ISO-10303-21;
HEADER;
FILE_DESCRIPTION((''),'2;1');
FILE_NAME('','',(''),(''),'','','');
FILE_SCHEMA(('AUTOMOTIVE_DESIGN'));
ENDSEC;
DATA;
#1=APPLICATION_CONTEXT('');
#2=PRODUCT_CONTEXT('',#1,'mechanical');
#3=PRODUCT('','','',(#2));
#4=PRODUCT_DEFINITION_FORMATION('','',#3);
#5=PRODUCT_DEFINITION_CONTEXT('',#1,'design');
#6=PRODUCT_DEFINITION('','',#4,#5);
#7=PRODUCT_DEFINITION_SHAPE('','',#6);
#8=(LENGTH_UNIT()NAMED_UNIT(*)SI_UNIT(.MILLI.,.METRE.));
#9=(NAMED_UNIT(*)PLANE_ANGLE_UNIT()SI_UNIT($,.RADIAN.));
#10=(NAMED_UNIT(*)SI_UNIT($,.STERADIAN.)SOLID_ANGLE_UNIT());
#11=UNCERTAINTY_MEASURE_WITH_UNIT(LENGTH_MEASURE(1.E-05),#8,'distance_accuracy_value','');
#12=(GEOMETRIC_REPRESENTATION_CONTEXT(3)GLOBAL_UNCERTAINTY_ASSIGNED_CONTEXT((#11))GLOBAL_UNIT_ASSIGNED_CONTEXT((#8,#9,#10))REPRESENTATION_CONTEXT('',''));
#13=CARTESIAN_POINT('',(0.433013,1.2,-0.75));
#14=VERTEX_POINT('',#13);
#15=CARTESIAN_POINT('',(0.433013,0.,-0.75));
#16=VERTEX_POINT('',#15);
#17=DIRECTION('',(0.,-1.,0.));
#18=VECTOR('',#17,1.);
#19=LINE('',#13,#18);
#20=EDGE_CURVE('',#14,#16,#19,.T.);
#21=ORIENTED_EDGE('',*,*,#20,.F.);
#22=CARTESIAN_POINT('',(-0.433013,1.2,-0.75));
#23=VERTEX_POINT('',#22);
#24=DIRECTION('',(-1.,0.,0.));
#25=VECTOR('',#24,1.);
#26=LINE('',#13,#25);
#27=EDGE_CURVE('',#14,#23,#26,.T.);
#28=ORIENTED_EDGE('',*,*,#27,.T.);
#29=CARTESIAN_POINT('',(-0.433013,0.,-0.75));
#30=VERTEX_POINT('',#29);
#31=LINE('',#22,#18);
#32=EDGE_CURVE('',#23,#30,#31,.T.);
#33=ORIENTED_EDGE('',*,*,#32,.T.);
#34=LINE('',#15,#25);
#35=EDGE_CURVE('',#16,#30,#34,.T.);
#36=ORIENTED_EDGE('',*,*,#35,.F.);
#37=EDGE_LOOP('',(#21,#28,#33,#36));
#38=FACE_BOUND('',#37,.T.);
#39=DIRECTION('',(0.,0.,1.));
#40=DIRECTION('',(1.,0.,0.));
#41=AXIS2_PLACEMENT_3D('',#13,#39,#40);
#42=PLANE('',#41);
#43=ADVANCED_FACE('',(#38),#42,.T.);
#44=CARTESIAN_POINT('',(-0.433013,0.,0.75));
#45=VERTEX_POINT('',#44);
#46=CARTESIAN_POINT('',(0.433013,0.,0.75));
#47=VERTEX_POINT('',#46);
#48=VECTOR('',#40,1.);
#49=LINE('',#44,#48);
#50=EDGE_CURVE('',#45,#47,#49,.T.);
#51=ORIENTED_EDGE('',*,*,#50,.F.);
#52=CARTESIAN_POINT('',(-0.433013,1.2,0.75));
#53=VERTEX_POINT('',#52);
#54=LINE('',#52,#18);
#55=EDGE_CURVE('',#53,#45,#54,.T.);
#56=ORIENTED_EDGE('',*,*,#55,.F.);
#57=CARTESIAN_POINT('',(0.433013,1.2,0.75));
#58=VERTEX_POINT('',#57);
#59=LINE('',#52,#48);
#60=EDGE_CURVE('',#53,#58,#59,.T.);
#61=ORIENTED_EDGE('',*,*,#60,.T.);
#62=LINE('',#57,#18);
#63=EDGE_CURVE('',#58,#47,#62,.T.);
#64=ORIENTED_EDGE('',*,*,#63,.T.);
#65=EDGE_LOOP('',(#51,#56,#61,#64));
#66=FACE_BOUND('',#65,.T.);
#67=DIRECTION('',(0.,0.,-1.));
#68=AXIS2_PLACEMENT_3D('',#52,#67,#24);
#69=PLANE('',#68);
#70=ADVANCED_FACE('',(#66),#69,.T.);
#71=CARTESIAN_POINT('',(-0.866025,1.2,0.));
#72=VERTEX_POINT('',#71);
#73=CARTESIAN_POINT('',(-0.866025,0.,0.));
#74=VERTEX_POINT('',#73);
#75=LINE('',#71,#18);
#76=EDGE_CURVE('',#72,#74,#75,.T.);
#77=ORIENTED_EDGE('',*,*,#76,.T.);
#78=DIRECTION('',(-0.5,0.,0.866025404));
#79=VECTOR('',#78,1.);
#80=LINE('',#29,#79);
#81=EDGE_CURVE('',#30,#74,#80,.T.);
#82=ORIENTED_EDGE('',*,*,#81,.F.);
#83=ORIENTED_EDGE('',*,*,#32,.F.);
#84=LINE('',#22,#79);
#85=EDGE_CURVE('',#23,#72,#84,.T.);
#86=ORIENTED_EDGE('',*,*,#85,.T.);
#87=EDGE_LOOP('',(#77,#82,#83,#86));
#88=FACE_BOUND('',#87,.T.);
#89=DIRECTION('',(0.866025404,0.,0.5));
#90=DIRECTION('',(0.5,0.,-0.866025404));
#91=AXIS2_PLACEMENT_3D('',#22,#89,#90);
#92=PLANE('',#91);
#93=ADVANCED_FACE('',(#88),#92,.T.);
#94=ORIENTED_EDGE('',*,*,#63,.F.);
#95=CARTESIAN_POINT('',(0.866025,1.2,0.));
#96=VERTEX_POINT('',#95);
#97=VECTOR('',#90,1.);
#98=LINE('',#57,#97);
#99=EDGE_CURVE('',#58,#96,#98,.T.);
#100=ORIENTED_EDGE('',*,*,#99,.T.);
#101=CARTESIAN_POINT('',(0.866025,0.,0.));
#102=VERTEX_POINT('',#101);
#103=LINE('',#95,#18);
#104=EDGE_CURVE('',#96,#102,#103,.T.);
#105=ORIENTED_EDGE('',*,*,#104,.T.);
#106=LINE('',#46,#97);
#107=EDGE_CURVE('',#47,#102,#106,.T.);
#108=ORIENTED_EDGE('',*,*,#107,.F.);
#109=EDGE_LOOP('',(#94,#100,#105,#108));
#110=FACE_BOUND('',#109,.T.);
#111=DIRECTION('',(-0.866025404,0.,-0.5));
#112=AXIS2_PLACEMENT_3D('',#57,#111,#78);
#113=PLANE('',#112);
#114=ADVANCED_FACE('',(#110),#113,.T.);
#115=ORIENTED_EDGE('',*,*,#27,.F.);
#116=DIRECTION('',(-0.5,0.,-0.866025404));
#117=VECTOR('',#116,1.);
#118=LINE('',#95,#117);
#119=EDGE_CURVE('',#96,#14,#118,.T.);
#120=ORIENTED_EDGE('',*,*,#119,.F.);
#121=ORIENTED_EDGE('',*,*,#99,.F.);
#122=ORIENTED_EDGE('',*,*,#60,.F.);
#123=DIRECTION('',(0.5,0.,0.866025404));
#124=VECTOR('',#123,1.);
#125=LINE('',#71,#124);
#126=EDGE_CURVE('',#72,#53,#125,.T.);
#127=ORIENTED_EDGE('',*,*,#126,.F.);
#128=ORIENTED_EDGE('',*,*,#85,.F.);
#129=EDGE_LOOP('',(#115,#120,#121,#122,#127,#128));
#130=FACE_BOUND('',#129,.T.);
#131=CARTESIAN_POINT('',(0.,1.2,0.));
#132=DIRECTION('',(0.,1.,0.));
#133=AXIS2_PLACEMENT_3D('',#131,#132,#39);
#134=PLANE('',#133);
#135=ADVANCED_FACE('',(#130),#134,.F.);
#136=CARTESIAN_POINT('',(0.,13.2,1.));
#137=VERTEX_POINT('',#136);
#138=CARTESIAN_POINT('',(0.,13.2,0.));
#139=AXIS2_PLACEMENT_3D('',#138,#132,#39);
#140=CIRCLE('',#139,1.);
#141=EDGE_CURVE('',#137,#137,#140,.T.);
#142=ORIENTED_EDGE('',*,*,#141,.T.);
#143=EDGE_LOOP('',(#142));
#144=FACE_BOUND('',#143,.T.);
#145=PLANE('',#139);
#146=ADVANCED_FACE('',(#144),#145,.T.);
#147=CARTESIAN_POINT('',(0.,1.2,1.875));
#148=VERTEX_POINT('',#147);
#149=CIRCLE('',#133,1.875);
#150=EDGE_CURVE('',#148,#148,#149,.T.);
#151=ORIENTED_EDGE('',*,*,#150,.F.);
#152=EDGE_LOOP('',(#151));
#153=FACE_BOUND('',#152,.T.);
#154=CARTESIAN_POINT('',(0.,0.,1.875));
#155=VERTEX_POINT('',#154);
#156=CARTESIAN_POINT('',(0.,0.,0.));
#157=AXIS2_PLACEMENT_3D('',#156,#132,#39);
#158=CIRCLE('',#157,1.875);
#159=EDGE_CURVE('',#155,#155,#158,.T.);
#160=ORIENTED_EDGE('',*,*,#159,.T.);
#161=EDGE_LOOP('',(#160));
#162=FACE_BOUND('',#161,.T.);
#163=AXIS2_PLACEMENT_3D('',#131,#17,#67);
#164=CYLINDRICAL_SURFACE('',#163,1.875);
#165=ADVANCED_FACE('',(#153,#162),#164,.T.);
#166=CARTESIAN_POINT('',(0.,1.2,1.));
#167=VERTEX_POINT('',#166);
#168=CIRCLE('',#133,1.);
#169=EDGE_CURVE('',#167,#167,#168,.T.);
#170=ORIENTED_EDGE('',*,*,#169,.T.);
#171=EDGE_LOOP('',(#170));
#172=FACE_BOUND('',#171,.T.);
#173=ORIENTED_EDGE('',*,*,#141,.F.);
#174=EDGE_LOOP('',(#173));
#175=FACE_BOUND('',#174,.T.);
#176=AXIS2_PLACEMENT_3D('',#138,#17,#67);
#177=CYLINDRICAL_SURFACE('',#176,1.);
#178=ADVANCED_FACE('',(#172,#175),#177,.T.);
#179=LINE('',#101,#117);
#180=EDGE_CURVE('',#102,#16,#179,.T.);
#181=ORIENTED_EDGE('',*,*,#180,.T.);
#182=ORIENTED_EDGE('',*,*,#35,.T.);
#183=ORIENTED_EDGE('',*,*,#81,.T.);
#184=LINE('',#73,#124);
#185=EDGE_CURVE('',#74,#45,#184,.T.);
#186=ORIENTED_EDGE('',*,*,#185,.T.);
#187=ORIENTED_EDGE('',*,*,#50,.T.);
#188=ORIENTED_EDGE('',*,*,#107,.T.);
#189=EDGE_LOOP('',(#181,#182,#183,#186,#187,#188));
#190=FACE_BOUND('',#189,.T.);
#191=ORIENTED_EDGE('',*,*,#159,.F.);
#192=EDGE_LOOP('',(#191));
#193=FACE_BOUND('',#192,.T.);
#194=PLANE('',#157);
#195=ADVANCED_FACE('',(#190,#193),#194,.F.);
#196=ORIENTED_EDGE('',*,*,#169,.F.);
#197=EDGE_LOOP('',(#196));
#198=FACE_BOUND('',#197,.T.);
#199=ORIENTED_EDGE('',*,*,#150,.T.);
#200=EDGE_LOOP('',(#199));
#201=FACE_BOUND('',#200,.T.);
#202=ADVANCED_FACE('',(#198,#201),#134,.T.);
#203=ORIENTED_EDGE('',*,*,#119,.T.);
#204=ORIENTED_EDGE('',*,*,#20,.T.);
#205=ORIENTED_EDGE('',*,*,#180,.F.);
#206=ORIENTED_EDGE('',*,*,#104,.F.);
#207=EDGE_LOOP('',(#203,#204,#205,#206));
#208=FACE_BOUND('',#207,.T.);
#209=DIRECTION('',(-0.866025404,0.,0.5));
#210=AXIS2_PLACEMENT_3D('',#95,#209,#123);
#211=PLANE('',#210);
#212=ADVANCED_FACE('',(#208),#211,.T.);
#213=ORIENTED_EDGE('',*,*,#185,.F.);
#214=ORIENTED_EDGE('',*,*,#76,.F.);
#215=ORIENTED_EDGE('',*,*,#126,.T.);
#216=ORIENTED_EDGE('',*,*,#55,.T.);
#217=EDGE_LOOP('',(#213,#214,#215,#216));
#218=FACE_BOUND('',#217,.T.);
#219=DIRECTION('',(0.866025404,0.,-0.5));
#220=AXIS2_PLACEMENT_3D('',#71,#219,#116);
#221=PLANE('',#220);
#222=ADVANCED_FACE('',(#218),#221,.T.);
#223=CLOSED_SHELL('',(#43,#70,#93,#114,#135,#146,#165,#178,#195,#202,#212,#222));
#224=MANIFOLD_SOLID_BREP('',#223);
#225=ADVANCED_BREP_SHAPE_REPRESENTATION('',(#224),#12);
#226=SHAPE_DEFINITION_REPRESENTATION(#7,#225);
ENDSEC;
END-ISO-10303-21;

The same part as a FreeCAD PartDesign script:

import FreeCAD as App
import Part
import Sketcher

V = App.Vector
Q = App.Units.Quantity


def add_polygon(sketch, points):
    """Adds a closed chain of lines whose ends are joined by coincident constraints."""
    first, n = sketch.GeometryCount, len(points)
    for a, b in zip(points, points[1:] + points[:1]):
        sketch.addGeometry(Part.LineSegment(App.Vector(*a, 0), App.Vector(*b, 0)), False)
    for i in range(n):
        sketch.addConstraint(Sketcher.Constraint("Coincident", first + i, 2, first + (i + 1) % n, 1))

doc = App.newDocument("Part")
body = doc.addObject("PartDesign::Body", "Body")

sketch1 = doc.addObject("Sketcher::SketchObject", "Sketch")
body.addObject(sketch1)
sketch1.AttachmentSupport = (doc.XZ_Plane, [""])
sketch1.MapMode = "FlatFace"
sketch1.addGeometry(Part.Circle(V(0, 0, 0), V(0, 0, 1), 1.9), False)
add_polygon(sketch1, [(0.4, -0.8), (0.9, 0), (0.4, 0.8), (-0.4, 0.8), (-0.9, 0), (-0.4, -0.8)])
sketch1.addConstraint([
    Sketcher.Constraint("Horizontal", 3),
    Sketcher.Constraint("Horizontal", 6),
    Sketcher.Constraint("Coincident", 0, 3, -1, 1),
    Sketcher.Constraint("Symmetric", 1, 2, 4, 2, -1, 1),
    Sketcher.Constraint("Symmetric", 2, 2, 5, 2, -1, 1),
    Sketcher.Constraint("PointOnObject", 1, 2, -1),
    Sketcher.Constraint("Parallel", 1, 4),
    Sketcher.Constraint("Vertical", 3, 2, 5, 2),
    Sketcher.Constraint("Diameter", 0, Q("3.75 mm")),
    Sketcher.Constraint("Angle", 1, Q("60 deg")),
    Sketcher.Constraint("DistanceY", 5, 2, 3, 2, Q("1.5 mm")),
    Sketcher.Constraint("DistanceX", 3, 2, 3, 1, Q("0.866025 mm")),
])
pad1 = doc.addObject("PartDesign::Pad", "Pad")
body.addObject(pad1)
pad1.Profile = sketch1
pad1.Length = 1.2
pad1.Reversed = True

sketch2 = doc.addObject("Sketcher::SketchObject", "Sketch001")
body.addObject(sketch2)
sketch2.AttachmentSupport = (doc.XZ_Plane, [""])
sketch2.MapMode = "FlatFace"
sketch2.AttachmentOffset = App.Placement(V(0, 0, -1.2), App.Rotation())
sketch2.addGeometry(Part.Circle(V(0, 0, 0), V(0, 0, 1), 1), False)
sketch2.addConstraint([
    Sketcher.Constraint("Coincident", 0, 3, -1, 1),
    Sketcher.Constraint("Diameter", 0, Q("2 mm")),
])
pad2 = doc.addObject("PartDesign::Pad", "Pad001")
body.addObject(pad2)
pad2.Profile = sketch2
pad2.Length = 12
pad2.Reversed = True

doc.recompute()
